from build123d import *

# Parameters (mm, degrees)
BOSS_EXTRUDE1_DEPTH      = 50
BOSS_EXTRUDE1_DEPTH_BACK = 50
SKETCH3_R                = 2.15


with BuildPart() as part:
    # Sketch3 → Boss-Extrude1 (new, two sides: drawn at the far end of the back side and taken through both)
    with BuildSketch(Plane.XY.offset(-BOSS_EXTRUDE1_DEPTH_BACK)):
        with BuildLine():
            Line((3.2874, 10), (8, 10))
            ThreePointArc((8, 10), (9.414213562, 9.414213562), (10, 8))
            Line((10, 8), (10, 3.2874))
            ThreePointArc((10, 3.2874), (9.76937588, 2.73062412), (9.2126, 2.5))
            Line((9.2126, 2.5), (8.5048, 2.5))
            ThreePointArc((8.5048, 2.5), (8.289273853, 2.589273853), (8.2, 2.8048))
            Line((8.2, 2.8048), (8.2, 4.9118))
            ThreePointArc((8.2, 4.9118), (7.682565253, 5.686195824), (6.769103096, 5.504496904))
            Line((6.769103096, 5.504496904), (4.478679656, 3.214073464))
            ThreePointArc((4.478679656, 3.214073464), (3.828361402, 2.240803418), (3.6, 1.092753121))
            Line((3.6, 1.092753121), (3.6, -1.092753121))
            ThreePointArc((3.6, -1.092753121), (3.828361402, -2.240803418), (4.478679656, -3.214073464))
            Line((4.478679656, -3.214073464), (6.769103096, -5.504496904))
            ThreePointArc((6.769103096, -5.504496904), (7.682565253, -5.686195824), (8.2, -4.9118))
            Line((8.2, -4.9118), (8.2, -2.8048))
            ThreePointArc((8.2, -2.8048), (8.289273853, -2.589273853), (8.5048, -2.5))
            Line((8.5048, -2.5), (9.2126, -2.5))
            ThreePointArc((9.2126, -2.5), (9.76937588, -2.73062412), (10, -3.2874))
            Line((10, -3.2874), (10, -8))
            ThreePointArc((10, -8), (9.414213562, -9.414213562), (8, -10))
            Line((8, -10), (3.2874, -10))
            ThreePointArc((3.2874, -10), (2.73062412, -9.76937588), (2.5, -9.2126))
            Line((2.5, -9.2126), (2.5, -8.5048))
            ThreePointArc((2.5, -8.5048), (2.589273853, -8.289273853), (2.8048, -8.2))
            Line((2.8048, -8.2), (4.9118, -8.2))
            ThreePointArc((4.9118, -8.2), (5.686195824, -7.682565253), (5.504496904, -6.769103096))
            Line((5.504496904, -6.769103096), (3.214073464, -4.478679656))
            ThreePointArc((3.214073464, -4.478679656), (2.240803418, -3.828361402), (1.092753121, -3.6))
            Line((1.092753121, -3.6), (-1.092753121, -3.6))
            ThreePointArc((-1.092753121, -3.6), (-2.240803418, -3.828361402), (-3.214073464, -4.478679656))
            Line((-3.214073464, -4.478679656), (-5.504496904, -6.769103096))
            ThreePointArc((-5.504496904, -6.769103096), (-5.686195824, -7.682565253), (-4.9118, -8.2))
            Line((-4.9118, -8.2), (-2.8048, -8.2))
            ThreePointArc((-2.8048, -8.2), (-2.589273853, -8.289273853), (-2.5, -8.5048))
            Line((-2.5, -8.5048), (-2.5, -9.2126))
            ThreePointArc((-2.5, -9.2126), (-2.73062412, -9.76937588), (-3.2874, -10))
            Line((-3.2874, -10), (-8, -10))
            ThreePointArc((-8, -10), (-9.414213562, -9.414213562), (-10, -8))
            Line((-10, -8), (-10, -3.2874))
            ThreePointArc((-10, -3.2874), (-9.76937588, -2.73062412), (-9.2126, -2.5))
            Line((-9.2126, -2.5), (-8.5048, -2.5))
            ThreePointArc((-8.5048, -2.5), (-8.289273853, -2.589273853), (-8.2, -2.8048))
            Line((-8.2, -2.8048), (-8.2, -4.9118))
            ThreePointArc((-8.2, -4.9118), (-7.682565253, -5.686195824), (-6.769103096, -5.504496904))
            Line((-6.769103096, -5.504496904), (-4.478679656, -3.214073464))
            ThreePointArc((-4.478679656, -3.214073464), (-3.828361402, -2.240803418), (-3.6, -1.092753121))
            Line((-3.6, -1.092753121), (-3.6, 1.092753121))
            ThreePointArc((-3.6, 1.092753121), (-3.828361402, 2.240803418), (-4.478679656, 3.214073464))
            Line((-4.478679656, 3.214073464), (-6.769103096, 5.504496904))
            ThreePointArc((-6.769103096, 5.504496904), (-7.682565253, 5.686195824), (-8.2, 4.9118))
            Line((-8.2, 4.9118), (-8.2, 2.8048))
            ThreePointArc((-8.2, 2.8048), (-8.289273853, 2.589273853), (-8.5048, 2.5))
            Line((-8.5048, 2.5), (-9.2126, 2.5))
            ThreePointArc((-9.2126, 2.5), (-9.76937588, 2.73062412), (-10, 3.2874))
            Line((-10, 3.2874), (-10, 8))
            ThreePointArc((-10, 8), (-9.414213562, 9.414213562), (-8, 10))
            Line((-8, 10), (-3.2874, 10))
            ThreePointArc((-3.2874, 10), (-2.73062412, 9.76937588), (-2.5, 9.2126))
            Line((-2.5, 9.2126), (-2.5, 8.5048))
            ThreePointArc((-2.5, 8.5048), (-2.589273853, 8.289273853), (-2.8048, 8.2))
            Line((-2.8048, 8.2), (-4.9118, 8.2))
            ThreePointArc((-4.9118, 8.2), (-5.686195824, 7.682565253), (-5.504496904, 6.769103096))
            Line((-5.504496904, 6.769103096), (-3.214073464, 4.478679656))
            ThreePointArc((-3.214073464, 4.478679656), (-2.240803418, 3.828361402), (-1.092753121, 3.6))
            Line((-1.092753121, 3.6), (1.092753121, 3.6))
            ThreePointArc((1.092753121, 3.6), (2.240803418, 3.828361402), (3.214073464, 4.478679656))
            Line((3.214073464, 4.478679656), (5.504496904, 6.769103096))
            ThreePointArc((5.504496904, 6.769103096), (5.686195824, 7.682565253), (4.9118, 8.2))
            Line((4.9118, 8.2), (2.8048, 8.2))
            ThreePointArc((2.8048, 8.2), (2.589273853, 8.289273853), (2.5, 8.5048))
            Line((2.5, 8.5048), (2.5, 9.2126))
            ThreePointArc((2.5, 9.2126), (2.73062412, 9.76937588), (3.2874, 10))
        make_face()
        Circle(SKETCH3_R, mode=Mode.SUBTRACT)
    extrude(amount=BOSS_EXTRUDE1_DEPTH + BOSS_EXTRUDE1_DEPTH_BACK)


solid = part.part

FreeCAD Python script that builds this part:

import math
import FreeCAD as App
import Part
import Sketcher

V = App.Vector
Q = App.Units.Quantity

doc = App.newDocument("Part")
body = doc.addObject("PartDesign::Body", "Body")

# Sketch on XY plane
sketch1 = body.newObject("Sketcher::SketchObject", "Sketch")
sketch1.AttachmentSupport = (doc.getObject("XY_Plane"), [""])
sketch1.MapMode = "FlatFace"
sketch1.addGeometry(Part.LineSegment(V(8, 10, 0), V(3.29, 10, 0)), False)
sketch1.addGeometry(Part.ArcOfCircle(Part.Circle(V(3.29, 9.21, 0), V(0, 0, 1), 0.79), math.radians(90), math.radians(180)), False)
sketch1.addGeometry(Part.LineSegment(V(2.5, 9.21, 0), V(2.5, 8.5, 0)), False)
sketch1.addGeometry(Part.ArcOfCircle(Part.Circle(V(2.8, 8.5, 0), V(0, 0, 1), 0.3), math.radians(180), math.radians(270)), False)
sketch1.addGeometry(Part.LineSegment(V(2.8, 8.2, 0), V(4.91, 8.2, 0)), False)
sketch1.addGeometry(Part.ArcOfCircle(Part.Circle(V(4.91, 7.36, 0), V(0, 0, 1), 0.84), math.radians(-45), math.radians(90)), False)
sketch1.addGeometry(Part.LineSegment(V(5.5, 6.77, 0), V(3.21, 4.48, 0)), False)
sketch1.addGeometry(Part.ArcOfCircle(Part.Circle(V(1.09, 6.6, 0), V(0, 0, 1), 3), math.radians(-90), math.radians(-45)), False)
sketch1.addGeometry(Part.LineSegment(V(1.09, 3.6, 0), V(-1.09, 3.6, 0)), False)
sketch1.addGeometry(Part.ArcOfCircle(Part.Circle(V(-1.09, 6.6, 0), V(0, 0, 1), 3), math.radians(-135), math.radians(-90)), False)
sketch1.addGeometry(Part.LineSegment(V(-3.21, 4.48, 0), V(-5.5, 6.77, 0)), False)
sketch1.addGeometry(Part.ArcOfCircle(Part.Circle(V(-4.91, 7.36, 0), V(0, 0, 1), 0.84), math.radians(90), math.radians(225)), False)
sketch1.addGeometry(Part.LineSegment(V(-4.91, 8.2, 0), V(-2.8, 8.2, 0)), False)
sketch1.addGeometry(Part.ArcOfCircle(Part.Circle(V(-2.8, 8.5, 0), V(0, 0, 1), 0.3), math.radians(-90), math.radians(0)), False)
sketch1.addGeometry(Part.LineSegment(V(-2.5, 8.5, 0), V(-2.5, 9.21, 0)), False)
sketch1.addGeometry(Part.ArcOfCircle(Part.Circle(V(-3.29, 9.21, 0), V(0, 0, 1), 0.79), math.radians(0), math.radians(90)), False)
sketch1.addGeometry(Part.LineSegment(V(-3.29, 10, 0), V(-8, 10, 0)), False)
sketch1.addGeometry(Part.ArcOfCircle(Part.Circle(V(-8, 8, 0), V(0, 0, 1), 2), math.radians(90), math.radians(180)), False)
sketch1.addGeometry(Part.LineSegment(V(-10, 8, 0), V(-10, 3.29, 0)), False)
sketch1.addGeometry(Part.ArcOfCircle(Part.Circle(V(-9.21, 3.29, 0), V(0, 0, 1), 0.79), math.radians(180), math.radians(270)), False)
sketch1.addGeometry(Part.LineSegment(V(-9.21, 2.5, 0), V(-8.5, 2.5, 0)), False)
sketch1.addGeometry(Part.ArcOfCircle(Part.Circle(V(-8.5, 2.8, 0), V(0, 0, 1), 0.3), math.radians(-90), math.radians(0)), False)
sketch1.addGeometry(Part.LineSegment(V(-8.2, 2.8, 0), V(-8.2, 4.91, 0)), False)
sketch1.addGeometry(Part.ArcOfCircle(Part.Circle(V(-7.36, 4.91, 0), V(0, 0, 1), 0.84), math.radians(45), math.radians(180)), False)
sketch1.addGeometry(Part.LineSegment(V(-6.77, 5.5, 0), V(-4.48, 3.21, 0)), False)
sketch1.addGeometry(Part.ArcOfCircle(Part.Circle(V(-6.6, 1.09, 0), V(0, 0, 1), 3), math.radians(0), math.radians(45)), False)
sketch1.addGeometry(Part.LineSegment(V(-3.6, 1.09, 0), V(-3.6, -1.09, 0)), False)
sketch1.addGeometry(Part.ArcOfCircle(Part.Circle(V(-6.6, -1.09, 0), V(0, 0, 1), 3), math.radians(-45), math.radians(0)), False)
sketch1.addGeometry(Part.LineSegment(V(-4.48, -3.21, 0), V(-6.77, -5.5, 0)), False)
sketch1.addGeometry(Part.ArcOfCircle(Part.Circle(V(-7.36, -4.91, 0), V(0, 0, 1), 0.84), math.radians(180), math.radians(315)), False)
sketch1.addGeometry(Part.LineSegment(V(-8.2, -4.91, 0), V(-8.2, -2.8, 0)), False)
sketch1.addGeometry(Part.ArcOfCircle(Part.Circle(V(-8.5, -2.8, 0), V(0, 0, 1), 0.3), math.radians(0), math.radians(90)), False)
sketch1.addGeometry(Part.LineSegment(V(-8.5, -2.5, 0), V(-9.21, -2.5, 0)), False)
sketch1.addGeometry(Part.ArcOfCircle(Part.Circle(V(-9.21, -3.29, 0), V(0, 0, 1), 0.79), math.radians(90), math.radians(180)), False)
sketch1.addGeometry(Part.LineSegment(V(-10, -3.29, 0), V(-10, -8, 0)), False)
sketch1.addGeometry(Part.ArcOfCircle(Part.Circle(V(-8, -8, 0), V(0, 0, 1), 2), math.radians(-180), math.radians(-90)), False)
sketch1.addGeometry(Part.LineSegment(V(-8, -10, 0), V(-3.29, -10, 0)), False)
sketch1.addGeometry(Part.ArcOfCircle(Part.Circle(V(-3.29, -9.21, 0), V(0, 0, 1), 0.79), math.radians(-90), math.radians(0)), False)
sketch1.addGeometry(Part.LineSegment(V(-2.5, -9.21, 0), V(-2.5, -8.5, 0)), False)
sketch1.addGeometry(Part.ArcOfCircle(Part.Circle(V(-2.8, -8.5, 0), V(0, 0, 1), 0.3), math.radians(0), math.radians(90)), False)
sketch1.addGeometry(Part.LineSegment(V(-2.8, -8.2, 0), V(-4.91, -8.2, 0)), False)
sketch1.addGeometry(Part.ArcOfCircle(Part.Circle(V(-4.91, -7.36, 0), V(0, 0, 1), 0.84), math.radians(135), math.radians(270)), False)
sketch1.addGeometry(Part.LineSegment(V(-5.5, -6.77, 0), V(-3.21, -4.48, 0)), False)
sketch1.addGeometry(Part.ArcOfCircle(Part.Circle(V(-1.09, -6.6, 0), V(0, 0, 1), 3), math.radians(90), math.radians(135)), False)
sketch1.addGeometry(Part.LineSegment(V(-1.09, -3.6, 0), V(1.09, -3.6, 0)), False)
sketch1.addGeometry(Part.ArcOfCircle(Part.Circle(V(1.09, -6.6, 0), V(0, 0, 1), 3), math.radians(45), math.radians(90)), False)
sketch1.addGeometry(Part.LineSegment(V(3.21, -4.48, 0), V(5.5, -6.77, 0)), False)
sketch1.addGeometry(Part.ArcOfCircle(Part.Circle(V(4.91, -7.36, 0), V(0, 0, 1), 0.84), math.radians(-90), math.radians(45)), False)
sketch1.addGeometry(Part.LineSegment(V(4.91, -8.2, 0), V(2.8, -8.2, 0)), False)
sketch1.addGeometry(Part.ArcOfCircle(Part.Circle(V(2.8, -8.5, 0), V(0, 0, 1), 0.3), math.radians(90), math.radians(180)), False)
sketch1.addGeometry(Part.LineSegment(V(2.5, -8.5, 0), V(2.5, -9.21, 0)), False)
sketch1.addGeometry(Part.ArcOfCircle(Part.Circle(V(3.29, -9.21, 0), V(0, 0, 1), 0.79), math.radians(180), math.radians(270)), False)
sketch1.addGeometry(Part.LineSegment(V(3.29, -10, 0), V(8, -10, 0)), False)
sketch1.addGeometry(Part.ArcOfCircle(Part.Circle(V(8, -8, 0), V(0, 0, 1), 2), math.radians(-90), math.radians(0)), False)
sketch1.addGeometry(Part.LineSegment(V(10, -8, 0), V(10, -3.29, 0)), False)
sketch1.addGeometry(Part.ArcOfCircle(Part.Circle(V(9.21, -3.29, 0), V(0, 0, 1), 0.79), math.radians(0), math.radians(90)), False)
sketch1.addGeometry(Part.LineSegment(V(9.21, -2.5, 0), V(8.5, -2.5, 0)), False)
sketch1.addGeometry(Part.ArcOfCircle(Part.Circle(V(8.5, -2.8, 0), V(0, 0, 1), 0.3), math.radians(90), math.radians(180)), False)
sketch1.addGeometry(Part.LineSegment(V(8.2, -2.8, 0), V(8.2, -4.91, 0)), False)
sketch1.addGeometry(Part.ArcOfCircle(Part.Circle(V(7.36, -4.91, 0), V(0, 0, 1), 0.84), math.radians(-135), math.radians(0)), False)
sketch1.addGeometry(Part.LineSegment(V(6.77, -5.5, 0), V(4.48, -3.21, 0)), False)
sketch1.addGeometry(Part.ArcOfCircle(Part.Circle(V(6.6, -1.09, 0), V(0, 0, 1), 3), math.radians(180), math.radians(225)), False)
sketch1.addGeometry(Part.LineSegment(V(3.6, -1.09, 0), V(3.6, 1.09, 0)), False)
sketch1.addGeometry(Part.ArcOfCircle(Part.Circle(V(6.6, 1.09, 0), V(0, 0, 1), 3), math.radians(135), math.radians(180)), False)
sketch1.addGeometry(Part.LineSegment(V(4.48, 3.21, 0), V(6.77, 5.5, 0)), False)
sketch1.addGeometry(Part.ArcOfCircle(Part.Circle(V(7.36, 4.91, 0), V(0, 0, 1), 0.84), math.radians(0), math.radians(135)), False)
sketch1.addGeometry(Part.LineSegment(V(8.2, 4.91, 0), V(8.2, 2.8, 0)), False)
sketch1.addGeometry(Part.ArcOfCircle(Part.Circle(V(8.5, 2.8, 0), V(0, 0, 1), 0.3), math.radians(180), math.radians(270)), False)
sketch1.addGeometry(Part.LineSegment(V(8.5, 2.5, 0), V(9.21, 2.5, 0)), False)
sketch1.addGeometry(Part.ArcOfCircle(Part.Circle(V(9.21, 3.29, 0), V(0, 0, 1), 0.79), math.radians(-90), math.radians(0)), False)
sketch1.addGeometry(Part.LineSegment(V(10, 3.29, 0), V(10, 8, 0)), False)
sketch1.addGeometry(Part.ArcOfCircle(Part.Circle(V(8, 8, 0), V(0, 0, 1), 2), math.radians(0), math.radians(90)), False)
sketch1.addGeometry(Part.Circle(V(0, 0, 0), V(0, 0, 1), 2.15), False)
sketch1.addConstraint(Sketcher.Constraint("Tangent", 0, 2, 1, 1))
sketch1.addConstraint(Sketcher.Constraint("Tangent", 1, 2, 2, 1))
sketch1.addConstraint(Sketcher.Constraint("Tangent", 2, 2, 3, 1))
sketch1.addConstraint(Sketcher.Constraint("Tangent", 3, 2, 4, 1))
sketch1.addConstraint(Sketcher.Constraint("Tangent", 4, 2, 5, 2))
sketch1.addConstraint(Sketcher.Constraint("Tangent", 5, 1, 6, 1))
sketch1.addConstraint(Sketcher.Constraint("Tangent", 6, 2, 7, 2))
sketch1.addConstraint(Sketcher.Constraint("Tangent", 7, 1, 8, 1))
sketch1.addConstraint(Sketcher.Constraint("Tangent", 8, 2, 9, 2))
sketch1.addConstraint(Sketcher.Constraint("Tangent", 9, 1, 10, 1))
sketch1.addConstraint(Sketcher.Constraint("Tangent", 10, 2, 11, 2))
sketch1.addConstraint(Sketcher.Constraint("Tangent", 11, 1, 12, 1))
sketch1.addConstraint(Sketcher.Constraint("Tangent", 12, 2, 13, 1))
sketch1.addConstraint(Sketcher.Constraint("Tangent", 13, 2, 14, 1))
sketch1.addConstraint(Sketcher.Constraint("Tangent", 14, 2, 15, 1))
sketch1.addConstraint(Sketcher.Constraint("Tangent", 15, 2, 16, 1))
sketch1.addConstraint(Sketcher.Constraint("Tangent", 16, 2, 17, 1))
sketch1.addConstraint(Sketcher.Constraint("Tangent", 17, 2, 18, 1))
sketch1.addConstraint(Sketcher.Constraint("Tangent", 18, 2, 19, 1))
sketch1.addConstraint(Sketcher.Constraint("Tangent", 19, 2, 20, 1))
sketch1.addConstraint(Sketcher.Constraint("Tangent", 20, 2, 21, 1))
sketch1.addConstraint(Sketcher.Constraint("Tangent", 21, 2, 22, 1))
sketch1.addConstraint(Sketcher.Constraint("Tangent", 22, 2, 23, 2))
sketch1.addConstraint(Sketcher.Constraint("Tangent", 23, 1, 24, 1))
sketch1.addConstraint(Sketcher.Constraint("Tangent", 24, 2, 25, 2))
sketch1.addConstraint(Sketcher.Constraint("Tangent", 25, 1, 26, 1))
sketch1.addConstraint(Sketcher.Constraint("Tangent", 26, 2, 27, 2))
sketch1.addConstraint(Sketcher.Constraint("Tangent", 27, 1, 28, 1))
sketch1.addConstraint(Sketcher.Constraint("Tangent", 28, 2, 29, 2))
sketch1.addConstraint(Sketcher.Constraint("Tangent", 29, 1, 30, 1))
sketch1.addConstraint(Sketcher.Constraint("Tangent", 30, 2, 31, 1))
sketch1.addConstraint(Sketcher.Constraint("Tangent", 31, 2, 32, 1))
sketch1.addConstraint(Sketcher.Constraint("Tangent", 32, 2, 33, 1))
sketch1.addConstraint(Sketcher.Constraint("Tangent", 33, 2, 34, 1))
sketch1.addConstraint(Sketcher.Constraint("Tangent", 34, 2, 35, 1))
sketch1.addConstraint(Sketcher.Constraint("Tangent", 35, 2, 36, 1))
sketch1.addConstraint(Sketcher.Constraint("Tangent", 36, 2, 37, 1))
sketch1.addConstraint(Sketcher.Constraint("Tangent", 37, 2, 38, 1))
sketch1.addConstraint(Sketcher.Constraint("Tangent", 38, 2, 39, 1))
sketch1.addConstraint(Sketcher.Constraint("Tangent", 39, 2, 40, 1))
sketch1.addConstraint(Sketcher.Constraint("Tangent", 40, 2, 41, 2))
sketch1.addConstraint(Sketcher.Constraint("Tangent", 41, 1, 42, 1))
sketch1.addConstraint(Sketcher.Constraint("Tangent", 42, 2, 43, 2))
sketch1.addConstraint(Sketcher.Constraint("Tangent", 43, 1, 44, 1))
sketch1.addConstraint(Sketcher.Constraint("Tangent", 44, 2, 45, 2))
sketch1.addConstraint(Sketcher.Constraint("Tangent", 45, 1, 46, 1))
sketch1.addConstraint(Sketcher.Constraint("Tangent", 46, 2, 47, 2))
sketch1.addConstraint(Sketcher.Constraint("Tangent", 47, 1, 48, 1))
sketch1.addConstraint(Sketcher.Constraint("Tangent", 48, 2, 49, 1))
sketch1.addConstraint(Sketcher.Constraint("Tangent", 49, 2, 50, 1))
sketch1.addConstraint(Sketcher.Constraint("Tangent", 50, 2, 51, 1))
sketch1.addConstraint(Sketcher.Constraint("Tangent", 51, 2, 52, 1))
sketch1.addConstraint(Sketcher.Constraint("Tangent", 52, 2, 53, 1))
sketch1.addConstraint(Sketcher.Constraint("Tangent", 53, 2, 54, 1))
sketch1.addConstraint(Sketcher.Constraint("Tangent", 54, 2, 55, 1))
sketch1.addConstraint(Sketcher.Constraint("Tangent", 55, 2, 56, 1))
sketch1.addConstraint(Sketcher.Constraint("Tangent", 56, 2, 57, 1))
sketch1.addConstraint(Sketcher.Constraint("Tangent", 57, 2, 58, 1))
sketch1.addConstraint(Sketcher.Constraint("Tangent", 58, 2, 59, 2))
sketch1.addConstraint(Sketcher.Constraint("Tangent", 59, 1, 60, 1))
sketch1.addConstraint(Sketcher.Constraint("Tangent", 60, 2, 61, 2))
sketch1.addConstraint(Sketcher.Constraint("Tangent", 61, 1, 62, 1))
sketch1.addConstraint(Sketcher.Constraint("Tangent", 62, 2, 63, 2))
sketch1.addConstraint(Sketcher.Constraint("Tangent", 63, 1, 64, 1))
sketch1.addConstraint(Sketcher.Constraint("Tangent", 64, 2, 65, 2))
sketch1.addConstraint(Sketcher.Constraint("Tangent", 65, 1, 66, 1))
sketch1.addConstraint(Sketcher.Constraint("Tangent", 66, 2, 67, 1))
sketch1.addConstraint(Sketcher.Constraint("Tangent", 67, 2, 68, 1))
sketch1.addConstraint(Sketcher.Constraint("Tangent", 68, 2, 69, 1))
sketch1.addConstraint(Sketcher.Constraint("Tangent", 69, 2, 70, 1))
sketch1.addConstraint(Sketcher.Constraint("Tangent", 70, 2, 71, 1))
sketch1.addConstraint(Sketcher.Constraint("Tangent", 71, 2, 0, 1))
sketch1.addConstraint(Sketcher.Constraint("Horizontal", 0))
sketch1.addConstraint(Sketcher.Constraint("Vertical", 2))
sketch1.addConstraint(Sketcher.Constraint("Horizontal", 4))
sketch1.addConstraint(Sketcher.Constraint("Horizontal", 8))
sketch1.addConstraint(Sketcher.Constraint("Horizontal", 12))
sketch1.addConstraint(Sketcher.Constraint("Vertical", 14))
sketch1.addConstraint(Sketcher.Constraint("Horizontal", 16))
sketch1.addConstraint(Sketcher.Constraint("Vertical", 18))
sketch1.addConstraint(Sketcher.Constraint("Horizontal", 20))
sketch1.addConstraint(Sketcher.Constraint("Vertical", 22))
sketch1.addConstraint(Sketcher.Constraint("Vertical", 26))
sketch1.addConstraint(Sketcher.Constraint("Vertical", 30))
sketch1.addConstraint(Sketcher.Constraint("Horizontal", 32))
sketch1.addConstraint(Sketcher.Constraint("Vertical", 34))
sketch1.addConstraint(Sketcher.Constraint("Horizontal", 36))
sketch1.addConstraint(Sketcher.Constraint("Vertical", 38))
sketch1.addConstraint(Sketcher.Constraint("Horizontal", 40))
sketch1.addConstraint(Sketcher.Constraint("Horizontal", 44))
sketch1.addConstraint(Sketcher.Constraint("Horizontal", 48))
sketch1.addConstraint(Sketcher.Constraint("Vertical", 50))
sketch1.addConstraint(Sketcher.Constraint("Horizontal", 52))
sketch1.addConstraint(Sketcher.Constraint("Vertical", 54))
sketch1.addConstraint(Sketcher.Constraint("Horizontal", 56))
sketch1.addConstraint(Sketcher.Constraint("Vertical", 58))
sketch1.addConstraint(Sketcher.Constraint("Vertical", 62))
sketch1.addConstraint(Sketcher.Constraint("Vertical", 66))
sketch1.addConstraint(Sketcher.Constraint("Horizontal", 68))
sketch1.addConstraint(Sketcher.Constraint("Vertical", 70))
sketch1.addConstraint(Sketcher.Constraint("Coincident", 72, 3, -1, 1))
sketch1.addConstraint(Sketcher.Constraint("Equal", 7, 9))
sketch1.addConstraint(Sketcher.Constraint("Equal", 5, 11))
sketch1.addConstraint(Sketcher.Constraint("Equal", 3, 13))
sketch1.addConstraint(Sketcher.Constraint("Equal", 1, 15))
sketch1.addConstraint(Sketcher.Constraint("Equal", 15, 19))
sketch1.addConstraint(Sketcher.Constraint("Equal", 13, 21))
sketch1.addConstraint(Sketcher.Constraint("Equal", 11, 23))
sketch1.addConstraint(Sketcher.Constraint("Equal", 9, 25))
sketch1.addConstraint(Sketcher.Constraint("Equal", 25, 27))
sketch1.addConstraint(Sketcher.Constraint("Equal", 23, 29))
sketch1.addConstraint(Sketcher.Constraint("Equal", 21, 31))
sketch1.addConstraint(Sketcher.Constraint("Equal", 19, 33))
sketch1.addConstraint(Sketcher.Constraint("Equal", 17, 35))
sketch1.addConstraint(Sketcher.Constraint("Equal", 33, 37))
sketch1.addConstraint(Sketcher.Constraint("Equal", 31, 39))
sketch1.addConstraint(Sketcher.Constraint("Equal", 29, 41))
sketch1.addConstraint(Sketcher.Constraint("Equal", 27, 43))
sketch1.addConstraint(Sketcher.Constraint("Equal", 43, 45))
sketch1.addConstraint(Sketcher.Constraint("Equal", 41, 47))
sketch1.addConstraint(Sketcher.Constraint("Equal", 39, 49))
sketch1.addConstraint(Sketcher.Constraint("Equal", 37, 51))
sketch1.addConstraint(Sketcher.Constraint("Equal", 35, 53))
sketch1.addConstraint(Sketcher.Constraint("Equal", 51, 55))
sketch1.addConstraint(Sketcher.Constraint("Equal", 49, 57))
sketch1.addConstraint(Sketcher.Constraint("Equal", 47, 59))
sketch1.addConstraint(Sketcher.Constraint("Equal", 45, 61))
sketch1.addConstraint(Sketcher.Constraint("Equal", 61, 63))
sketch1.addConstraint(Sketcher.Constraint("Equal", 59, 65))
sketch1.addConstraint(Sketcher.Constraint("Equal", 57, 67))
sketch1.addConstraint(Sketcher.Constraint("Equal", 55, 69))
sketch1.addConstraint(Sketcher.Constraint("Equal", 53, 71))
sketch1.addConstraint(Sketcher.Constraint("Symmetric", 1, 3, 37, 3, -1, 1))
sketch1.addConstraint(Sketcher.Constraint("Symmetric", 5, 3, 41, 3, -1, 1))
sketch1.addConstraint(Sketcher.Constraint("Symmetric", 7, 3, 43, 3, -1, 1))
sketch1.addConstraint(Sketcher.Constraint("Symmetric", 11, 3, 47, 3, -1, 1))
sketch1.addConstraint(Sketcher.Constraint("Symmetric", 15, 3, 51, 3, -1, 1))
sketch1.addConstraint(Sketcher.Constraint("Symmetric", 19, 3, 55, 3, -1, 1))
sketch1.addConstraint(Sketcher.Constraint("Symmetric", 23, 3, 59, 3, -1, 1))
sketch1.addConstraint(Sketcher.Constraint("Symmetric", 25, 3, 61, 3, -1, 1))
sketch1.addConstraint(Sketcher.Constraint("Symmetric", 29, 3, 65, 3, -1, 1))
sketch1.addConstraint(Sketcher.Constraint("Symmetric", 33, 3, 69, 3, -1, 1))
sketch1.addConstraint(Sketcher.Constraint("Symmetric", 5, 3, 11, 3, -2))
sketch1.addConstraint(Sketcher.Constraint("Symmetric", 1, 3, 15, 3, -2))
sketch1.addConstraint(Sketcher.Constraint("Symmetric", 33, 3, 55, 3, -2))
sketch1.addConstraint(Sketcher.Constraint("Symmetric", 29, 3, 59, 3, -2))
sketch1.addConstraint(Sketcher.Constraint("Perpendicular", 6, 10))
sketch1.addConstraint(Sketcher.Constraint("Parallel", 10, 24))
sketch1.addConstraint(Sketcher.Constraint("Perpendicular", 24, 28))
sketch1.addConstraint(Sketcher.Constraint("Perpendicular", 42, 46))
sketch1.addConstraint(Sketcher.Constraint("Perpendicular", 60, 64))
sketch1.addConstraint(Sketcher.Constraint("Horizontal", 27, 3, 61, 3))
sketch1.addConstraint(Sketcher.Constraint("Equal", 68, 2))
sketch1.addConstraint(Sketcher.Constraint("Equal", 52, 18))
sketch1.addConstraint(Sketcher.Constraint("Equal", 48, 22))
sketch1.addConstraint(Sketcher.Constraint("Equal", 44, 26))
sketch1.addConstraint(Sketcher.Constraint("Equal", 10, 24))
sketch1.addConstraint(Sketcher.Constraint("Radius", 7, Q("3 mm")))
sketch1.addConstraint(Sketcher.Constraint("Radius", 17, Q("2 mm")))
sketch1.addConstraint(Sketcher.Constraint("Diameter", 72, Q("4.3 mm")))
sketch1.addConstraint(Sketcher.Constraint("DistanceX", 17, 3, -1, 1, Q("8 mm")))
sketch1.addConstraint(Sketcher.Constraint("DistanceY", -1, 1, 7, 3, Q("6.6 mm")))
sketch1.addConstraint(Sketcher.Constraint("DistanceX", -1, 1, 1, 2, Q("2.5 mm")))
sketch1.addConstraint(Sketcher.Constraint("DistanceY", -1, 1, 3, 2, Q("8.2 mm")))
sketch1.addConstraint(Sketcher.Constraint("Radius", 1, Q("0.7874 mm")))
sketch1.addConstraint(Sketcher.Constraint("Radius", 3, Q("0.3048 mm")))
sketch1.addConstraint(Sketcher.Constraint("Radius", 5, Q("0.8382 mm")))
sketch1.addConstraint(Sketcher.Constraint("DistanceX", 4, 1, 4, 2, Q("2.107 mm")))
pad1 = body.newObject("PartDesign::Pad", "Pad")
pad1.Profile = sketch1
pad1.Type = "TwoLengths"
pad1.Length = 50
pad1.Length2 = 50

doc.recompute()
